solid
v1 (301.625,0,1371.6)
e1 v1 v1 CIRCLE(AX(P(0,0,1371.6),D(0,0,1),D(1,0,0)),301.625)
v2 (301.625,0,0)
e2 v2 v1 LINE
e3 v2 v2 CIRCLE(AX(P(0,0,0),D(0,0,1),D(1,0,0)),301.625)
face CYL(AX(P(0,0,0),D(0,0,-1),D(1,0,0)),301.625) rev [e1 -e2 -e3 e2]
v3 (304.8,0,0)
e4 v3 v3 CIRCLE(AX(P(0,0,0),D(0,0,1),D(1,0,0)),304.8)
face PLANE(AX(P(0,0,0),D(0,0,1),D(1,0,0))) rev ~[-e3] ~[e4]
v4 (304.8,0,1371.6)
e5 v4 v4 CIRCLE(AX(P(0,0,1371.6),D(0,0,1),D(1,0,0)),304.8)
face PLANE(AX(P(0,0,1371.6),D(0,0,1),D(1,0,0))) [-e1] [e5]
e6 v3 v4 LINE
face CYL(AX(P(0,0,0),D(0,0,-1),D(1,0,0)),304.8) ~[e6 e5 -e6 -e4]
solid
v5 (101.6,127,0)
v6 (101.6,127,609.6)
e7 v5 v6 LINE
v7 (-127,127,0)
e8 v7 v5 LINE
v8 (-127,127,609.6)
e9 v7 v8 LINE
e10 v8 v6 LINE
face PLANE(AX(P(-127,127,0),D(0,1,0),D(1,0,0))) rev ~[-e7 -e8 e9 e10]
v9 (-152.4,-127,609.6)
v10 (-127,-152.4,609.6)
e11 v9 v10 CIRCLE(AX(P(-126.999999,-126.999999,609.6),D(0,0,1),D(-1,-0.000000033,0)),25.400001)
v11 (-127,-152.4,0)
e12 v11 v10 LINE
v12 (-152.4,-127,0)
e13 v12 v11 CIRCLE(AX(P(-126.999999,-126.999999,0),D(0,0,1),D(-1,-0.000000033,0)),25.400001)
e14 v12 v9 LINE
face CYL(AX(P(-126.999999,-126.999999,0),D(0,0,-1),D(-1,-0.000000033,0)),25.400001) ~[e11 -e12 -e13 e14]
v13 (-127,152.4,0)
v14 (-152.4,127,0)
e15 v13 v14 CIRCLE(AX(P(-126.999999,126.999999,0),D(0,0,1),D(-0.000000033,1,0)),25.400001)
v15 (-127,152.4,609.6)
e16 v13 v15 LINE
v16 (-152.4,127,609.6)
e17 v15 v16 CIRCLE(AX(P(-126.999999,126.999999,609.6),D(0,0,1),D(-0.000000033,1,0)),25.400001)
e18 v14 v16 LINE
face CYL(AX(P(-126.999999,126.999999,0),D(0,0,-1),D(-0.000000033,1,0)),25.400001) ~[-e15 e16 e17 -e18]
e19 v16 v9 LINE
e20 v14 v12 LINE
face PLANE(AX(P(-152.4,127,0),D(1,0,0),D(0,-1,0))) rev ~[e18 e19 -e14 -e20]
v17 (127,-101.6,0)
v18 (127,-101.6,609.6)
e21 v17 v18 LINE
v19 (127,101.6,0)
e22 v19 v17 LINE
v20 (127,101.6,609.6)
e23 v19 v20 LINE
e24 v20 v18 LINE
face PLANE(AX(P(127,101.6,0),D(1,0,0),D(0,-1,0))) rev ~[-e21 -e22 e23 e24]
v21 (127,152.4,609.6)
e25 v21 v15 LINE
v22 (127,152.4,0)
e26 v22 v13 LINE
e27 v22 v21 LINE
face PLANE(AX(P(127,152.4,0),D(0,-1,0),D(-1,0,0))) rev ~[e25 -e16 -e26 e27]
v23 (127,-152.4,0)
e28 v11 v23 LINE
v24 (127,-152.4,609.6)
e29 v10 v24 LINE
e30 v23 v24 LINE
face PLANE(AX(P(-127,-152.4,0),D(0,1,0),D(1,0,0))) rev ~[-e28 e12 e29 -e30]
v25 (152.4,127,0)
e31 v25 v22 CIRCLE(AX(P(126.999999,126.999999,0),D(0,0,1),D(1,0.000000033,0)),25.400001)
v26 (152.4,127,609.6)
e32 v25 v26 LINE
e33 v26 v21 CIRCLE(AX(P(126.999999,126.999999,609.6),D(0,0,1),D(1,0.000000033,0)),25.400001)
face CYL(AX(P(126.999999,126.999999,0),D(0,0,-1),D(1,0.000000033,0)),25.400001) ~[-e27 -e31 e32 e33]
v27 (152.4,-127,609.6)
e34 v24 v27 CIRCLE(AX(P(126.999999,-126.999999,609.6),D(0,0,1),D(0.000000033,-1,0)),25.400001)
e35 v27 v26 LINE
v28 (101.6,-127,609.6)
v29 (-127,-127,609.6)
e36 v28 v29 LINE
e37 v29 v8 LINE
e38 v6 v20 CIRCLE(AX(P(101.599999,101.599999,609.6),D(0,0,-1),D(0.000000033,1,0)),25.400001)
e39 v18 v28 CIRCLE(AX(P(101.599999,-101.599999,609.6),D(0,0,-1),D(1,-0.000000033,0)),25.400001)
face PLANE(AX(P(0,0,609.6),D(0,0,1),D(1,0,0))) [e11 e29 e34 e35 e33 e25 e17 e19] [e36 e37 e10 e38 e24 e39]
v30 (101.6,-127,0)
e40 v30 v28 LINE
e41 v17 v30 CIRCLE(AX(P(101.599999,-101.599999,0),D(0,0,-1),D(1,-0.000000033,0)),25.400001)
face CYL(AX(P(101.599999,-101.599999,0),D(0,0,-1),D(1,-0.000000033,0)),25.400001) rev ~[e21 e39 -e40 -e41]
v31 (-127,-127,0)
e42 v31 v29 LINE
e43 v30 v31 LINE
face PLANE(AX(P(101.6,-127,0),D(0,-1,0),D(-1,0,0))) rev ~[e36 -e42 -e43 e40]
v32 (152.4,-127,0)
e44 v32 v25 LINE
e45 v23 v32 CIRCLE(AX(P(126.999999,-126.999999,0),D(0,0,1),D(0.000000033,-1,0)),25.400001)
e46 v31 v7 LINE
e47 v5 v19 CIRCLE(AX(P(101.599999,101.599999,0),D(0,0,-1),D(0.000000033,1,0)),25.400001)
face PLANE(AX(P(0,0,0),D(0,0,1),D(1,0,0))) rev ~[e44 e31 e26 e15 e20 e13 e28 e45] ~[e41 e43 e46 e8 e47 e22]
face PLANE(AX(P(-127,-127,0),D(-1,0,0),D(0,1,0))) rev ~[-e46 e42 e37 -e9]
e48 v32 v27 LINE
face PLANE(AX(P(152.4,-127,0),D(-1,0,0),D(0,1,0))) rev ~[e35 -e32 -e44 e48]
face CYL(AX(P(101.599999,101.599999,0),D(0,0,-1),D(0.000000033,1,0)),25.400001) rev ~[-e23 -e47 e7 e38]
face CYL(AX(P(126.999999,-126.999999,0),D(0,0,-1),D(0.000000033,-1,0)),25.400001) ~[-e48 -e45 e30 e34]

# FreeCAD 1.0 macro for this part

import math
import FreeCAD as App
import Part
import Sketcher

V = App.Vector
Q = App.Units.Quantity

doc = App.newDocument("Part")
body = doc.addObject("PartDesign::Body", "Body")

sketch1 = body.newObject("Sketcher::SketchObject", "Sketch")
sketch1.AttachmentSupport = (doc.getObject("XY_Plane"), [""])
sketch1.MapMode = "FlatFace"
sketch1.addGeometry([
    Part.LineSegment(V(127, 152, 0), V(-127, 152, 0)),
    Part.ArcOfCircle(Part.Circle(V(-127, 127, 0), V(0, 0, 1), 25), math.radians(90), math.radians(180)),
    Part.LineSegment(V(-152, 127, 0), V(-152, -127, 0)),
    Part.ArcOfCircle(Part.Circle(V(-127, -127, 0), V(0, 0, 1), 25), math.radians(-180), math.radians(-90)),
    Part.LineSegment(V(-127, -152, 0), V(127, -152, 0)),
    Part.ArcOfCircle(Part.Circle(V(127, -127, 0), V(0, 0, 1), 25), math.radians(-90), math.radians(0)),
    Part.LineSegment(V(152, -127, 0), V(152, 127, 0)),
    Part.ArcOfCircle(Part.Circle(V(127, 127, 0), V(0, 0, 1), 25), math.radians(0), math.radians(90)),
    Part.LineSegment(V(127, 102, 0), V(127, -102, 0)),
    Part.ArcOfCircle(Part.Circle(V(102, -102, 0), V(0, 0, 1), 25), math.radians(-90), math.radians(0)),
    Part.LineSegment(V(102, -127, 0), V(-127, -127, 0)),
    Part.LineSegment(V(-127, -127, 0), V(-127, 127, 0)),
    Part.LineSegment(V(-127, 127, 0), V(102, 127, 0)),
    Part.ArcOfCircle(Part.Circle(V(102, 102, 0), V(0, 0, 1), 25), math.radians(0), math.radians(90)),
], False)
sketch1.addConstraint([
    Sketcher.Constraint("Tangent", 0, 2, 1, 1),
    Sketcher.Constraint("Tangent", 1, 2, 2, 1),
    Sketcher.Constraint("Tangent", 2, 2, 3, 1),
    Sketcher.Constraint("Tangent", 3, 2, 4, 1),
    Sketcher.Constraint("Tangent", 4, 2, 5, 1),
    Sketcher.Constraint("Tangent", 5, 2, 6, 1),
    Sketcher.Constraint("Tangent", 6, 2, 7, 1),
    Sketcher.Constraint("Tangent", 7, 2, 0, 1),
    Sketcher.Constraint("Tangent", 8, 2, 9, 2),
    Sketcher.Constraint("Tangent", 9, 1, 10, 1),
    Sketcher.Constraint("Coincident", 10, 2, 11, 1),
    Sketcher.Constraint("Coincident", 11, 2, 12, 1),
    Sketcher.Constraint("Tangent", 12, 2, 13, 2),
    Sketcher.Constraint("Tangent", 13, 1, 8, 1),
    Sketcher.Constraint("Horizontal", 0),
    Sketcher.Constraint("Vertical", 2),
    Sketcher.Constraint("Horizontal", 4),
    Sketcher.Constraint("Vertical", 6),
    Sketcher.Constraint("Vertical", 8),
    Sketcher.Constraint("Horizontal", 10),
    Sketcher.Constraint("Vertical", 11),
    Sketcher.Constraint("Horizontal", 12),
    Sketcher.Constraint("Coincident", 10, 2, 3, 3),
    Sketcher.Constraint("Coincident", 11, 2, 1, 3),
    Sketcher.Constraint("Equal", 3, 5),
    Sketcher.Constraint("Equal", 5, 7),
    Sketcher.Constraint("Equal", 7, 9),
    Sketcher.Constraint("Equal", 9, 13),
    Sketcher.Constraint("Symmetric", 1, 3, 5, 3, -1, 1),
    Sketcher.Constraint("Vertical", 7, 2, 8, 2),
    Sketcher.Constraint("Equal", 4, 2),
    Sketcher.Constraint("Radius", 1, Q("1 in")),
    Sketcher.Constraint("DistanceX", 0, 2, 0, 1, Q("10 in")),
])
pad1 = body.newObject("PartDesign::Pad", "Pad")
pad1.Profile = sketch1
pad1.Length = Q("24 in")
body2 = doc.addObject("PartDesign::Body", "Body001")

sketch2 = body2.newObject("Sketcher::SketchObject", "Sketch001")
sketch2.AttachmentSupport = (doc.getObject("XY_Plane001"), [""])
sketch2.MapMode = "FlatFace"
sketch2.addGeometry([
    Part.Circle(V(0, 0, 0), V(0, 0, 1), 305),
    Part.Circle(V(0, 0, 0), V(0, 0, 1), 302),
], False)
sketch2.addConstraint([
    Sketcher.Constraint("Coincident", 0, 3, -1, 1),
    Sketcher.Constraint("Coincident", 1, 3, -1, 1),
    Sketcher.Constraint("Diameter", 0, Q("24 in")),
    Sketcher.Constraint("Diameter", 1, Q("23.75 in")),
])
pad2 = body2.newObject("PartDesign::Pad", "Pad001")
pad2.Profile = sketch2
pad2.Length = Q("54 in")

doc.recompute()
